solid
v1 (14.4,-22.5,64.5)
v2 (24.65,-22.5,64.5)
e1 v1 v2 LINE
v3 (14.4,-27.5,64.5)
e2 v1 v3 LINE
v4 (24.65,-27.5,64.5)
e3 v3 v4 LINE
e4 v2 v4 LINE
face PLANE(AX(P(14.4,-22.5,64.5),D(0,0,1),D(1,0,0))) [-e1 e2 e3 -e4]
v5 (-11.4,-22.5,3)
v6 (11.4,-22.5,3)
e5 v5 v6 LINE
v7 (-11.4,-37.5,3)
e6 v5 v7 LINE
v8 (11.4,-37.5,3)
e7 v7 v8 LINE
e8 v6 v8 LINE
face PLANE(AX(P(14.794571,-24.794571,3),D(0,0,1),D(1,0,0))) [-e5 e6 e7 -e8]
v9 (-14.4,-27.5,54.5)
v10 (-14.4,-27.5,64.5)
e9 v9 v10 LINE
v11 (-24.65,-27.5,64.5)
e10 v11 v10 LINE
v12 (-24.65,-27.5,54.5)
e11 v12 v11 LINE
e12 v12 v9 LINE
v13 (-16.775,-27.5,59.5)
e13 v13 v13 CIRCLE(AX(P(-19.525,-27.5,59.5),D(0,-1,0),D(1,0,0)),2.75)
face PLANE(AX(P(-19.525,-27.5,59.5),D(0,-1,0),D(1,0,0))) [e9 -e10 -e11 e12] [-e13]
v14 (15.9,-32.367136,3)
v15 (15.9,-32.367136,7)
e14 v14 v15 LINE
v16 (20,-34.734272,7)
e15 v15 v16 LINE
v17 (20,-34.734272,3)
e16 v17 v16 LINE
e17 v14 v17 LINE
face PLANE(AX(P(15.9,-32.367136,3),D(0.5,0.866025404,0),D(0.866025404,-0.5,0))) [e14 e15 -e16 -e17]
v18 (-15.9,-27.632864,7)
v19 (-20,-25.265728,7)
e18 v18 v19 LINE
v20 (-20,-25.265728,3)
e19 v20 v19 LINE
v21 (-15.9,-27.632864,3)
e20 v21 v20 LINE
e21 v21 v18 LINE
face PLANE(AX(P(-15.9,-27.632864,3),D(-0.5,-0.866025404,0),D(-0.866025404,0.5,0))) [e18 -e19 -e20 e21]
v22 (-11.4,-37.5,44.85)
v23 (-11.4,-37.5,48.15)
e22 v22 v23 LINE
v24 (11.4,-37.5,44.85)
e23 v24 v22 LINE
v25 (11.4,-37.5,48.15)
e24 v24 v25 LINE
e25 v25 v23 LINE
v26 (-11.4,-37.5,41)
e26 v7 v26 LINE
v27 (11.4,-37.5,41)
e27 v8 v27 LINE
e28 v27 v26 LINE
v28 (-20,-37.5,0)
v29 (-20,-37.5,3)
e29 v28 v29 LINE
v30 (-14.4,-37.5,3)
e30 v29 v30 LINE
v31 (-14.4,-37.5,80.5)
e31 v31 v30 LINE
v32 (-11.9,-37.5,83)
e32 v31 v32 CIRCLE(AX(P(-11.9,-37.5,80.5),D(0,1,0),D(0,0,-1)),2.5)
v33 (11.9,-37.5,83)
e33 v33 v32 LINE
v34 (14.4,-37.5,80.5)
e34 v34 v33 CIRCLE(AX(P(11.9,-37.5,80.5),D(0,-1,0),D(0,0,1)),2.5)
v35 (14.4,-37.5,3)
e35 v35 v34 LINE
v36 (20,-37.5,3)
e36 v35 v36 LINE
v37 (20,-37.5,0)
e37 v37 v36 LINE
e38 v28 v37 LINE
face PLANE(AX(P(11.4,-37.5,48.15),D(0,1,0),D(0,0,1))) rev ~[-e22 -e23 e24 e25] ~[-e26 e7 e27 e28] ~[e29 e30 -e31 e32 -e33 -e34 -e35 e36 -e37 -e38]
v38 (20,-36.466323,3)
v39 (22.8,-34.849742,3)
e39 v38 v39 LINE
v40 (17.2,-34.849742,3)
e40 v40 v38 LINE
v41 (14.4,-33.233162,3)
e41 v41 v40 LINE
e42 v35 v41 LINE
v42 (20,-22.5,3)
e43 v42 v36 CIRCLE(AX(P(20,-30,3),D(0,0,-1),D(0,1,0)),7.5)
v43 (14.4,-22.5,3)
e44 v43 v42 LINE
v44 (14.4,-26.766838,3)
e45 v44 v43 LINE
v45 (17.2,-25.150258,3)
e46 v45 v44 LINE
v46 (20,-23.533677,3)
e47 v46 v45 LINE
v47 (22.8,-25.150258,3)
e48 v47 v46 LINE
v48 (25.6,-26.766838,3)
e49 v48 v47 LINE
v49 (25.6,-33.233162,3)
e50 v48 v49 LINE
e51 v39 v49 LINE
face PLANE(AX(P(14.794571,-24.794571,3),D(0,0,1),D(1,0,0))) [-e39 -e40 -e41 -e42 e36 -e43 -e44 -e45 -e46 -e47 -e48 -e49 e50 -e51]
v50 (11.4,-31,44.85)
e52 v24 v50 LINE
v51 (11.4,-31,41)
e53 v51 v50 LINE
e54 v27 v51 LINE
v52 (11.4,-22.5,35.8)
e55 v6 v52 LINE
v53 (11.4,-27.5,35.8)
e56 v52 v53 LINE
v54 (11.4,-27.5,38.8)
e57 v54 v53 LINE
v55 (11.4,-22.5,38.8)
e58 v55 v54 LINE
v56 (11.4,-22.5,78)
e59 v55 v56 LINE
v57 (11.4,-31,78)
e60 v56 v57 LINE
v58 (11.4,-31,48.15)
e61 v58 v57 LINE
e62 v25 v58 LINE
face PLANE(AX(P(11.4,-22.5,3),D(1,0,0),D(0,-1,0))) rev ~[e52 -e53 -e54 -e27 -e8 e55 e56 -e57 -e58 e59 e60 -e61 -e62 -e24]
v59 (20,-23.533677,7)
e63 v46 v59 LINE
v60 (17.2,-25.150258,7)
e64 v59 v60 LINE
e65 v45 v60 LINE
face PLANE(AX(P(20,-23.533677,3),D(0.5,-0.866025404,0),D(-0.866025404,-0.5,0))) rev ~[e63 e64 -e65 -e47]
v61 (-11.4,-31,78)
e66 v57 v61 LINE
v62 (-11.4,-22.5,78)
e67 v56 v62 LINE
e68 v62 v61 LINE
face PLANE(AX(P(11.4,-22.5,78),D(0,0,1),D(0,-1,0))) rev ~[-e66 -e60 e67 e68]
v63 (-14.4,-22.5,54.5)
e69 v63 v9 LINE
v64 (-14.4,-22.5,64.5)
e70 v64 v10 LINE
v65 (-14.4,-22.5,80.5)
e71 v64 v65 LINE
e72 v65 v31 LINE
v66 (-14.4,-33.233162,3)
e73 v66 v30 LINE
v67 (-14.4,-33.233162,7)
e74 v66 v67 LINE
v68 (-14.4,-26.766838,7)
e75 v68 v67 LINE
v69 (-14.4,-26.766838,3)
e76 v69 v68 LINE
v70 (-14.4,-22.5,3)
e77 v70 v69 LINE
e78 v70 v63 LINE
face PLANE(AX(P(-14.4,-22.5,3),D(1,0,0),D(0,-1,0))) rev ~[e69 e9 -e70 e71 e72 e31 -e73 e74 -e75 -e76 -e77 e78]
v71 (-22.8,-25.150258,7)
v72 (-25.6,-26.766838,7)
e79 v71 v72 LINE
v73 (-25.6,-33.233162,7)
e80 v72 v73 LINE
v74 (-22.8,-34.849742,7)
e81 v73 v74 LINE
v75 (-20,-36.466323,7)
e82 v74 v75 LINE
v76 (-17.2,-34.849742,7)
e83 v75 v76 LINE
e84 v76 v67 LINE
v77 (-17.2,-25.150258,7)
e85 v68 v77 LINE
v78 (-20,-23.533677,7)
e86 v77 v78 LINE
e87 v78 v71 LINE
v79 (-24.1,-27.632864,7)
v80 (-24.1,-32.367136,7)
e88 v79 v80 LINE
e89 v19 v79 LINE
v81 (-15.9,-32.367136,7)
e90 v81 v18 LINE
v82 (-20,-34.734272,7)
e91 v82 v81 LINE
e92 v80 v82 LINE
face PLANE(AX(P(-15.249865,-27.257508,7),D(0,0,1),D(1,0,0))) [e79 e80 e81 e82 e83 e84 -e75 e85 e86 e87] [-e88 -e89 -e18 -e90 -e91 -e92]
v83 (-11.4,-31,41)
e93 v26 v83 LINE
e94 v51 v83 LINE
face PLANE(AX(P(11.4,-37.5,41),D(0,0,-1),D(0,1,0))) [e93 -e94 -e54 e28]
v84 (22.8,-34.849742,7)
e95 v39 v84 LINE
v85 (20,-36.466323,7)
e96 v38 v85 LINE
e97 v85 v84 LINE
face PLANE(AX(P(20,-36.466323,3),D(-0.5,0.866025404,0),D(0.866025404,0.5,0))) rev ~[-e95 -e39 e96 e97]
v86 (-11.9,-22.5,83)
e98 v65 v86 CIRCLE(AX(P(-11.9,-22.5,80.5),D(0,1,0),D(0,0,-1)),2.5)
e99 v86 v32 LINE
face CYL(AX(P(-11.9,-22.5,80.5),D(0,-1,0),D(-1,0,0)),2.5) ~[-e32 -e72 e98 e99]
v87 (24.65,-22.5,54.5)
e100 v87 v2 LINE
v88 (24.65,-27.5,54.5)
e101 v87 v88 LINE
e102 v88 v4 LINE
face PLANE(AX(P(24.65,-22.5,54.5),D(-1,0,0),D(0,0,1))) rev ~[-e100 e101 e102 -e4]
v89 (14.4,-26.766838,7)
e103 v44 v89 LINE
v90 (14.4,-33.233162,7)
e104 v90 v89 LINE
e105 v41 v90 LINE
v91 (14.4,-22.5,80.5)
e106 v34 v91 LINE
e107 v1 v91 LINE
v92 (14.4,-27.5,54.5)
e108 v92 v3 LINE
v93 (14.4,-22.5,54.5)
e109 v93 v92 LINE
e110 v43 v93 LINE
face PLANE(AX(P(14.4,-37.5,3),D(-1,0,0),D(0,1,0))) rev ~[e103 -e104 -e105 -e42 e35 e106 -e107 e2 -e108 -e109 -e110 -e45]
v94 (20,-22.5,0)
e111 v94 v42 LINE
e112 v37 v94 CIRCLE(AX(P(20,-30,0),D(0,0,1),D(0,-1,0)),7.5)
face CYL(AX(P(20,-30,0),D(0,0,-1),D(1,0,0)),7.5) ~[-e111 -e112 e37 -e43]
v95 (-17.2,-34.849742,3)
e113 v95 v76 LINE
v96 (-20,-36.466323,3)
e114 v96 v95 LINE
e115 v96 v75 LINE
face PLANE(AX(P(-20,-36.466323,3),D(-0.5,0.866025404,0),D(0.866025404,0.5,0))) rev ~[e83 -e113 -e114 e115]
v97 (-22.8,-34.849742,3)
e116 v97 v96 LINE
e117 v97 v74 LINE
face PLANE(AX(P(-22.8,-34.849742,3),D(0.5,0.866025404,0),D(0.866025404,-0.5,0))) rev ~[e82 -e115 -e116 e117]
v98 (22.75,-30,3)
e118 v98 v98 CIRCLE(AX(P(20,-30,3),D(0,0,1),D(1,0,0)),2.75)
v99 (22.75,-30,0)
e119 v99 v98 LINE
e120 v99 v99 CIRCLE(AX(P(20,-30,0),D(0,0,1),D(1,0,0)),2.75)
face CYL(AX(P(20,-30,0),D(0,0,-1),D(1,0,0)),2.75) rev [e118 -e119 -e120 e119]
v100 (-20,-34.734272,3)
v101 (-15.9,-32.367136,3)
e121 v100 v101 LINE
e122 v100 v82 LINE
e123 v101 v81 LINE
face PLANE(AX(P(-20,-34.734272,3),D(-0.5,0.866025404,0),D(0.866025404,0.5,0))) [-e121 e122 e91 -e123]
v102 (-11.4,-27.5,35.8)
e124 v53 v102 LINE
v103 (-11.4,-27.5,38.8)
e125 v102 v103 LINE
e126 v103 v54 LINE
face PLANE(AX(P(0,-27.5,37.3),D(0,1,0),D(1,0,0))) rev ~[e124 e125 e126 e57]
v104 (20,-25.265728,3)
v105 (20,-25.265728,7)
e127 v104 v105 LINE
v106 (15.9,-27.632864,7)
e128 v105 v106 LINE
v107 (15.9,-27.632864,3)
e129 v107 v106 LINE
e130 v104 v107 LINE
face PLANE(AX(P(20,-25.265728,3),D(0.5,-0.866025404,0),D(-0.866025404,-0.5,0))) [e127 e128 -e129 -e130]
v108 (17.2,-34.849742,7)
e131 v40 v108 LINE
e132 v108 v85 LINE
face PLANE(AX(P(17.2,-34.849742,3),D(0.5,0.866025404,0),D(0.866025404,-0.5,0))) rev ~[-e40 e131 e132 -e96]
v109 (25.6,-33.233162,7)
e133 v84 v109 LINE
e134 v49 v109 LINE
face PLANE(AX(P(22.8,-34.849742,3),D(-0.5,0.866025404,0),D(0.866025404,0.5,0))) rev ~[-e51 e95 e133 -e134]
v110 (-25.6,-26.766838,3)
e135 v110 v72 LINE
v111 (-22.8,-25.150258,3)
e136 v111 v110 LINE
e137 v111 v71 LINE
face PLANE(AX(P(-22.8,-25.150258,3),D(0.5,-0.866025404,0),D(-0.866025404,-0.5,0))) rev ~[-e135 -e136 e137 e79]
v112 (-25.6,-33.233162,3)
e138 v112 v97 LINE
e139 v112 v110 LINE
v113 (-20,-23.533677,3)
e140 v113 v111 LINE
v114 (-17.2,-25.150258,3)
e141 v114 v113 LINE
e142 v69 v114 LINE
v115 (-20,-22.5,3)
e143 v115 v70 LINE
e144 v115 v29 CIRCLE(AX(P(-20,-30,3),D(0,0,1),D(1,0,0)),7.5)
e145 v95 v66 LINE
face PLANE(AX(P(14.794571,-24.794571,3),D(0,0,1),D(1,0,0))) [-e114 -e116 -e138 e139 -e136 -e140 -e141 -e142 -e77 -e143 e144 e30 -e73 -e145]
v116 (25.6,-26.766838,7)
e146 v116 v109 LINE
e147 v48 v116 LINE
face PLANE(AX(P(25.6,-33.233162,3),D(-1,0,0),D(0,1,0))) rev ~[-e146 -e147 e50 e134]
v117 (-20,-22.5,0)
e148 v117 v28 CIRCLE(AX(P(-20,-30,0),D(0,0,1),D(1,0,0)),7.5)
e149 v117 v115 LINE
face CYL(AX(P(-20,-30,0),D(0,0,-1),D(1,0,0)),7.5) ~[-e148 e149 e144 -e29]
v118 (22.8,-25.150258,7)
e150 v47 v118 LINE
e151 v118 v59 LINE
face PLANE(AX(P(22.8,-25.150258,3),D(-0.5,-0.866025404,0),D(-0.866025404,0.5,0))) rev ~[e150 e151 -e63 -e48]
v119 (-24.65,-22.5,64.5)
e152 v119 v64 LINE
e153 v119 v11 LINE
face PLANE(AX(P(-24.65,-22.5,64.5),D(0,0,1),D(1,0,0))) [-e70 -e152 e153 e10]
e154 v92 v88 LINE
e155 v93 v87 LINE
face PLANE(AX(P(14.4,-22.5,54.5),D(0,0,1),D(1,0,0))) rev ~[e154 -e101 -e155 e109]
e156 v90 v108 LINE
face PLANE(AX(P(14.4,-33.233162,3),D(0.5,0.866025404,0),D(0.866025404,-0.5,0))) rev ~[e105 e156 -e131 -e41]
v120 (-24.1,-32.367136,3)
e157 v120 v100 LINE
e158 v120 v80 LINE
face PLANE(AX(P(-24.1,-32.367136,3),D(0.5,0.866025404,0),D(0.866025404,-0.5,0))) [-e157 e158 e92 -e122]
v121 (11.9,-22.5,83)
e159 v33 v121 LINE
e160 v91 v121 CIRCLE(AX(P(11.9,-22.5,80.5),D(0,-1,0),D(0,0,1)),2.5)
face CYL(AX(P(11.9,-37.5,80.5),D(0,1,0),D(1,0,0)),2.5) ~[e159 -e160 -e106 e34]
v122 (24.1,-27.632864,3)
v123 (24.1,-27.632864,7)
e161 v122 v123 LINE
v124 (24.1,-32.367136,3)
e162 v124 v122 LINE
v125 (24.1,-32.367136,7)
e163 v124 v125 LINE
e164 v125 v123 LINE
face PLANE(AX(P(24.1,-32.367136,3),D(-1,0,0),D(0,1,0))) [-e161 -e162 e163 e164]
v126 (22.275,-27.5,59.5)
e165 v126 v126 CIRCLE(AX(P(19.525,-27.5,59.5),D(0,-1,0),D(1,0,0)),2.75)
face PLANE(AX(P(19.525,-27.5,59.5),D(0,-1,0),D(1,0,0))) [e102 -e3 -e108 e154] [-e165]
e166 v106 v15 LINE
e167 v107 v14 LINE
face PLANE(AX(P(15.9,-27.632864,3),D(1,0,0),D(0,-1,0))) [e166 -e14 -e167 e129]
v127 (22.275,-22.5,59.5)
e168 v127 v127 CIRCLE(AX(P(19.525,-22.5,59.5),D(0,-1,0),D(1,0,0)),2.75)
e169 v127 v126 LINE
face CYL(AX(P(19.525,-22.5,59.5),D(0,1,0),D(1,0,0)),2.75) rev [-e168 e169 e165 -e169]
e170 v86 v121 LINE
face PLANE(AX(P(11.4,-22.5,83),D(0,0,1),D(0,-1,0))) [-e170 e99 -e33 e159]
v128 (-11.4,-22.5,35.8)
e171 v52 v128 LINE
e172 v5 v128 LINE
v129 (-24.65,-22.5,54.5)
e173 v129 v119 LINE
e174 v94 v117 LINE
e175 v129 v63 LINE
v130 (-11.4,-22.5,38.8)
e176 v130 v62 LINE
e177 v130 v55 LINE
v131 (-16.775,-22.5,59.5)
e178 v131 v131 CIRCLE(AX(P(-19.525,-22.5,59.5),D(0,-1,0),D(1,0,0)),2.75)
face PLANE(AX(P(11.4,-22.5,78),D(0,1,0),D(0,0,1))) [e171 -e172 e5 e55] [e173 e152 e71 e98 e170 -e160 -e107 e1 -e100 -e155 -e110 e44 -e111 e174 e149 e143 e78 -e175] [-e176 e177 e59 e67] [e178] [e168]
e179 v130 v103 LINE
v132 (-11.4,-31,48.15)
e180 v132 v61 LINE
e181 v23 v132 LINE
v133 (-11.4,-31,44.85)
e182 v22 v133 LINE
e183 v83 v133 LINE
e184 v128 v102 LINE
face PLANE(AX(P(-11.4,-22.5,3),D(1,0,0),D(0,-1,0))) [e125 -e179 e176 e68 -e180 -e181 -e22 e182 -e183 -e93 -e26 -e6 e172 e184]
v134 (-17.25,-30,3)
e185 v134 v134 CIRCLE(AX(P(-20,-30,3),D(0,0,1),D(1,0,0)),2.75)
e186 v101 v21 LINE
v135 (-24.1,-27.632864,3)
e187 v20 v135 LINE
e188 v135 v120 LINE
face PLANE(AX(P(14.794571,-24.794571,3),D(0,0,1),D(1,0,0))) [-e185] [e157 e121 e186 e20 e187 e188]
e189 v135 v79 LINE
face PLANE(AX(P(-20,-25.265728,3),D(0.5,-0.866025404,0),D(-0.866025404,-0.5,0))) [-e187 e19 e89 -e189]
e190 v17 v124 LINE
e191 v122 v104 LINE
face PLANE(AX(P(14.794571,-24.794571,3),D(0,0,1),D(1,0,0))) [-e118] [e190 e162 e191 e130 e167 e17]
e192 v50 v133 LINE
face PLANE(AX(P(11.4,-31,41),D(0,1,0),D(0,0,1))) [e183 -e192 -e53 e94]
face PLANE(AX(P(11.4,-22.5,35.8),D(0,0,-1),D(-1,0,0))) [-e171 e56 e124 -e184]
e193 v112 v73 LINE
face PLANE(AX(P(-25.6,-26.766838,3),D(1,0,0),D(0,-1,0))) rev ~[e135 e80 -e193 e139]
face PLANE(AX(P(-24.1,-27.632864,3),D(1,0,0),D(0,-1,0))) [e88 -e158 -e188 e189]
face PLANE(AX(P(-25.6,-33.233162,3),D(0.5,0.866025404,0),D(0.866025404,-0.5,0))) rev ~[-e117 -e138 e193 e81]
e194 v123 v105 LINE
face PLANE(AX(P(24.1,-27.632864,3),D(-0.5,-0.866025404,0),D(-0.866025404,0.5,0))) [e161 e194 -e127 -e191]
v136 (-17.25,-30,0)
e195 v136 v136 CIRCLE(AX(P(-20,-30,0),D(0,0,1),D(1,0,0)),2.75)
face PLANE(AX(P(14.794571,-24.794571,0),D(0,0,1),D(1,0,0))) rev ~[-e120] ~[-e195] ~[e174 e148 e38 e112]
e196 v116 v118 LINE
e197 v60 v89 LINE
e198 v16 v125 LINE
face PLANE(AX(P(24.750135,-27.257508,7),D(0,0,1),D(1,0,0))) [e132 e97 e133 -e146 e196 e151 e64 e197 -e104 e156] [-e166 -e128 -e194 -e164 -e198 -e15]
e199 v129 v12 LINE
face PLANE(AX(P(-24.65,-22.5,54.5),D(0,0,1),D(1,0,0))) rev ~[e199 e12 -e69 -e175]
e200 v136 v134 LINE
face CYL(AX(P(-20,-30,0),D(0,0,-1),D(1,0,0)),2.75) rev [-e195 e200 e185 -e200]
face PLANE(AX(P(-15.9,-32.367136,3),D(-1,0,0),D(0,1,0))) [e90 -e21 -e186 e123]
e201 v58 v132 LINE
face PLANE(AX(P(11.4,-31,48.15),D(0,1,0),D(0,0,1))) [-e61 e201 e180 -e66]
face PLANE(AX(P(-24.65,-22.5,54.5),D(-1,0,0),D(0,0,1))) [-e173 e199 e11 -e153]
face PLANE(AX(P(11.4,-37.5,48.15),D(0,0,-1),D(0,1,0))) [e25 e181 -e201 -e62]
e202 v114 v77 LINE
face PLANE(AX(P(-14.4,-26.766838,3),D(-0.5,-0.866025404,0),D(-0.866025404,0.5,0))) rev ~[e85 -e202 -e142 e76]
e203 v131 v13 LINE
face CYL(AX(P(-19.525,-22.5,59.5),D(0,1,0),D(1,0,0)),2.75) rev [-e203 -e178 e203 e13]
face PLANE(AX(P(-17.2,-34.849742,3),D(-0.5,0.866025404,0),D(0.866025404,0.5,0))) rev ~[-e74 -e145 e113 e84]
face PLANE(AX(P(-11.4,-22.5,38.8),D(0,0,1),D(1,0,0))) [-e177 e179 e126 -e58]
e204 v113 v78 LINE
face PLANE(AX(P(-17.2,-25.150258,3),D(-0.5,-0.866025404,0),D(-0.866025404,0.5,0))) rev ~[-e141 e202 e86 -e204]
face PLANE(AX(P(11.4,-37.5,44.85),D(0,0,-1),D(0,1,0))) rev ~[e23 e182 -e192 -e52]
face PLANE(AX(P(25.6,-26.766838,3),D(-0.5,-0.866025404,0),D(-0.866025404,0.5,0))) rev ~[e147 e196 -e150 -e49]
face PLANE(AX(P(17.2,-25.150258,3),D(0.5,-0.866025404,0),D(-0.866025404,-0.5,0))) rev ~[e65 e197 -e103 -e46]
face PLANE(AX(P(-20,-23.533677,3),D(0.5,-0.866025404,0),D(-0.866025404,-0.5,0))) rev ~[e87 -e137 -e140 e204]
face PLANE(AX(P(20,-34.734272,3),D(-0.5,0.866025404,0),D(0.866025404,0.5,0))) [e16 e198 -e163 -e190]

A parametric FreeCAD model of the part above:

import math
import FreeCAD as App
import Part
import Sketcher
Q = App.Units.Quantity


def edges_at(feature, points):
    """Names of the edges that pass closest to the given points."""
    edges = feature.Shape.Edges
    near = lambda p: min(range(len(edges)), key=lambda i: edges[i].distToShape(Part.Vertex(*p))[0])
    return sorted({f"Edge{near(p) + 1}" for p in points})

doc = App.newDocument("Part")
body = doc.addObject("PartDesign::Body", "Body")

# Sketch on XY plane
sketch1 = doc.addObject("Sketcher::SketchObject", "Sketch")
body.addObject(sketch1)
sketch1.AttachmentSupport = (doc.XY_Plane, [""])
sketch1.MapMode = "FlatFace"
sketch1.addGeometry(Part.ArcOfCircle(Part.Circle(App.Vector(-20, -30, 0), App.Vector(0, 0, 1), 7.5), math.radians(90), math.radians(270)), False)
sketch1.addGeometry(Part.LineSegment(App.Vector(-20, -37.5, 0), App.Vector(20, -37.5, 0)), False)
sketch1.addGeometry(Part.ArcOfCircle(Part.Circle(App.Vector(20, -30, 0), App.Vector(0, 0, 1), 7.5), math.radians(-90), math.radians(90)), False)
sketch1.addGeometry(Part.LineSegment(App.Vector(20, -22.5, 0), App.Vector(-20, -22.5, 0)), False)
sketch1.addGeometry(Part.Circle(App.Vector(-20, -30, 0), App.Vector(0, 0, 1), 2.75), False)
sketch1.addGeometry(Part.Circle(App.Vector(20, -30, 0), App.Vector(0, 0, 1), 2.75), False)
sketch1.addConstraint(Sketcher.Constraint("Tangent", 0, 2, 1, 1))
sketch1.addConstraint(Sketcher.Constraint("Tangent", 1, 2, 2, 1))
sketch1.addConstraint(Sketcher.Constraint("Tangent", 2, 2, 3, 1))
sketch1.addConstraint(Sketcher.Constraint("Tangent", 3, 2, 0, 1))
sketch1.addConstraint(Sketcher.Constraint("Horizontal", 1))
sketch1.addConstraint(Sketcher.Constraint("Horizontal", 3))
sketch1.addConstraint(Sketcher.Constraint("Coincident", 4, 3, 0, 3))
sketch1.addConstraint(Sketcher.Constraint("Coincident", 5, 3, 2, 3))
sketch1.addConstraint(Sketcher.Constraint("Equal", 4, 5))
sketch1.addConstraint(Sketcher.Constraint("Diameter", 4, Q("5.5 mm")))
sketch1.addConstraint(Sketcher.Constraint("Radius", 0, Q("7.5 mm")))
sketch1.addConstraint(Sketcher.Constraint("DistanceX", 1, 1, 1, 2, Q("40 mm")))
sketch1.addConstraint(Sketcher.Constraint("DistanceX", 0, 3, -1, 1, Q("20 mm")))
sketch1.addConstraint(Sketcher.Constraint("DistanceY", 0, 3, -1, 1, Q("30 mm")))
pad1 = doc.addObject("PartDesign::Pad", "Pad")
body.addObject(pad1)
pad1.Profile = sketch1
pad1.Length = 3

# Sketch on XY plane
sketch2 = doc.addObject("Sketcher::SketchObject", "Sketch001")
body.addObject(sketch2)
sketch2.AttachmentSupport = (doc.XY_Plane, [""])
sketch2.MapMode = "FlatFace"
sketch2.AttachmentOffset = App.Placement(App.Vector(0, 0, 3), App.Rotation())
sketch2.addGeometry(Part.LineSegment(App.Vector(-14.4, -26.766838, 0), App.Vector(-17.2, -25.150258, 0)), False)
sketch2.addGeometry(Part.LineSegment(App.Vector(-17.2, -25.150258, 0), App.Vector(-20, -23.533677, 0)), False)
sketch2.addGeometry(Part.LineSegment(App.Vector(-20, -23.533677, 0), App.Vector(-22.8, -25.150258, 0)), False)
sketch2.addGeometry(Part.LineSegment(App.Vector(-22.8, -25.150258, 0), App.Vector(-25.6, -26.766838, 0)), False)
sketch2.addGeometry(Part.LineSegment(App.Vector(-25.6, -26.766838, 0), App.Vector(-25.6, -33.233162, 0)), False)
sketch2.addGeometry(Part.LineSegment(App.Vector(-25.6, -33.233162, 0), App.Vector(-22.8, -34.849742, 0)), False)
sketch2.addGeometry(Part.LineSegment(App.Vector(-22.8, -34.849742, 0), App.Vector(-20, -36.466323, 0)), False)
sketch2.addGeometry(Part.LineSegment(App.Vector(-20, -36.466323, 0), App.Vector(-17.2, -34.849742, 0)), False)
sketch2.addGeometry(Part.LineSegment(App.Vector(-17.2, -34.849742, 0), App.Vector(-14.4, -33.233162, 0)), False)
sketch2.addGeometry(Part.LineSegment(App.Vector(-14.4, -33.233162, 0), App.Vector(-14.4, -26.766838, 0)), False)
sketch2.addGeometry(Part.LineSegment(App.Vector(-15.9, -27.632864, 0), App.Vector(-15.9, -32.367136, 0)), False)
sketch2.addGeometry(Part.LineSegment(App.Vector(-15.9, -32.367136, 0), App.Vector(-20, -34.734272, 0)), False)
sketch2.addGeometry(Part.LineSegment(App.Vector(-20, -34.734272, 0), App.Vector(-24.1, -32.367136, 0)), False)
sketch2.addGeometry(Part.LineSegment(App.Vector(-24.1, -32.367136, 0), App.Vector(-24.1, -27.632864, 0)), False)
sketch2.addGeometry(Part.LineSegment(App.Vector(-24.1, -27.632864, 0), App.Vector(-20, -25.265728, 0)), False)
sketch2.addGeometry(Part.LineSegment(App.Vector(-20, -25.265728, 0), App.Vector(-15.9, -27.632864, 0)), False)
sketch2.addGeometry(Part.LineSegment(App.Vector(25.6, -26.766838, 0), App.Vector(22.8, -25.150258, 0)), False)
sketch2.addGeometry(Part.LineSegment(App.Vector(22.8, -25.150258, 0), App.Vector(20, -23.533677, 0)), False)
sketch2.addGeometry(Part.LineSegment(App.Vector(20, -23.533677, 0), App.Vector(17.2, -25.150258, 0)), False)
sketch2.addGeometry(Part.LineSegment(App.Vector(17.2, -25.150258, 0), App.Vector(14.4, -26.766838, 0)), False)
sketch2.addGeometry(Part.LineSegment(App.Vector(14.4, -26.766838, 0), App.Vector(14.4, -33.233162, 0)), False)
sketch2.addGeometry(Part.LineSegment(App.Vector(14.4, -33.233162, 0), App.Vector(17.2, -34.849742, 0)), False)
sketch2.addGeometry(Part.LineSegment(App.Vector(17.2, -34.849742, 0), App.Vector(20, -36.466323, 0)), False)
sketch2.addGeometry(Part.LineSegment(App.Vector(20, -36.466323, 0), App.Vector(22.8, -34.849742, 0)), False)
sketch2.addGeometry(Part.LineSegment(App.Vector(22.8, -34.849742, 0), App.Vector(25.6, -33.233162, 0)), False)
sketch2.addGeometry(Part.LineSegment(App.Vector(25.6, -33.233162, 0), App.Vector(25.6, -26.766838, 0)), False)
sketch2.addGeometry(Part.LineSegment(App.Vector(24.1, -27.632864, 0), App.Vector(24.1, -32.367136, 0)), False)
sketch2.addGeometry(Part.LineSegment(App.Vector(24.1, -32.367136, 0), App.Vector(20, -34.734272, 0)), False)
sketch2.addGeometry(Part.LineSegment(App.Vector(20, -34.734272, 0), App.Vector(15.9, -32.367136, 0)), False)
sketch2.addGeometry(Part.LineSegment(App.Vector(15.9, -32.367136, 0), App.Vector(15.9, -27.632864, 0)), False)
sketch2.addGeometry(Part.LineSegment(App.Vector(15.9, -27.632864, 0), App.Vector(20, -25.265728, 0)), False)
sketch2.addGeometry(Part.LineSegment(App.Vector(20, -25.265728, 0), App.Vector(24.1, -27.632864, 0)), False)
sketch2.addConstraint(Sketcher.Constraint("Coincident", 0, 2, 1, 1))
sketch2.addConstraint(Sketcher.Constraint("Coincident", 1, 2, 2, 1))
sketch2.addConstraint(Sketcher.Constraint("Coincident", 2, 2, 3, 1))
sketch2.addConstraint(Sketcher.Constraint("Coincident", 3, 2, 4, 1))
sketch2.addConstraint(Sketcher.Constraint("Coincident", 4, 2, 5, 1))
sketch2.addConstraint(Sketcher.Constraint("Coincident", 5, 2, 6, 1))
sketch2.addConstraint(Sketcher.Constraint("Coincident", 6, 2, 7, 1))
sketch2.addConstraint(Sketcher.Constraint("Coincident", 7, 2, 8, 1))
sketch2.addConstraint(Sketcher.Constraint("Coincident", 8, 2, 9, 1))
sketch2.addConstraint(Sketcher.Constraint("Coincident", 9, 2, 0, 1))
sketch2.addConstraint(Sketcher.Constraint("Coincident", 10, 2, 11, 1))
sketch2.addConstraint(Sketcher.Constraint("Coincident", 11, 2, 12, 1))
sketch2.addConstraint(Sketcher.Constraint("Coincident", 12, 2, 13, 1))
sketch2.addConstraint(Sketcher.Constraint("Coincident", 13, 2, 14, 1))
sketch2.addConstraint(Sketcher.Constraint("Coincident", 14, 2, 15, 1))
sketch2.addConstraint(Sketcher.Constraint("Coincident", 15, 2, 10, 1))
sketch2.addConstraint(Sketcher.Constraint("Coincident", 16, 2, 17, 1))
sketch2.addConstraint(Sketcher.Constraint("Coincident", 17, 2, 18, 1))
sketch2.addConstraint(Sketcher.Constraint("Coincident", 18, 2, 19, 1))
sketch2.addConstraint(Sketcher.Constraint("Coincident", 19, 2, 20, 1))
sketch2.addConstraint(Sketcher.Constraint("Coincident", 20, 2, 21, 1))
sketch2.addConstraint(Sketcher.Constraint("Coincident", 21, 2, 22, 1))
sketch2.addConstraint(Sketcher.Constraint("Coincident", 22, 2, 23, 1))
sketch2.addConstraint(Sketcher.Constraint("Coincident", 23, 2, 24, 1))
sketch2.addConstraint(Sketcher.Constraint("Coincident", 24, 2, 25, 1))
sketch2.addConstraint(Sketcher.Constraint("Coincident", 25, 2, 16, 1))
sketch2.addConstraint(Sketcher.Constraint("Coincident", 26, 2, 27, 1))
sketch2.addConstraint(Sketcher.Constraint("Coincident", 27, 2, 28, 1))
sketch2.addConstraint(Sketcher.Constraint("Coincident", 28, 2, 29, 1))
sketch2.addConstraint(Sketcher.Constraint("Coincident", 29, 2, 30, 1))
sketch2.addConstraint(Sketcher.Constraint("Coincident", 30, 2, 31, 1))
sketch2.addConstraint(Sketcher.Constraint("Coincident", 31, 2, 26, 1))
sketch2.addConstraint(Sketcher.Constraint("Vertical", 4))
sketch2.addConstraint(Sketcher.Constraint("Vertical", 9))
sketch2.addConstraint(Sketcher.Constraint("Vertical", 10))
sketch2.addConstraint(Sketcher.Constraint("Vertical", 13))
sketch2.addConstraint(Sketcher.Constraint("Vertical", 20))
sketch2.addConstraint(Sketcher.Constraint("Vertical", 25))
sketch2.addConstraint(Sketcher.Constraint("Vertical", 26))
sketch2.addConstraint(Sketcher.Constraint("Vertical", 29))
sketch2.addConstraint(Sketcher.Constraint("Symmetric", 2, 2, 16, 2, -2))
sketch2.addConstraint(Sketcher.Constraint("Symmetric", 1, 2, 17, 2, -2))
sketch2.addConstraint(Sketcher.Constraint("Symmetric", 0, 2, 18, 2, -2))
sketch2.addConstraint(Sketcher.Constraint("Symmetric", 9, 2, 19, 2, -2))
sketch2.addConstraint(Sketcher.Constraint("Symmetric", 7, 2, 21, 2, -2))
sketch2.addConstraint(Sketcher.Constraint("Symmetric", 6, 2, 22, 2, -2))
sketch2.addConstraint(Sketcher.Constraint("Symmetric", 5, 2, 23, 2, -2))
sketch2.addConstraint(Sketcher.Constraint("Symmetric", 4, 2, 24, 2, -2))
sketch2.addConstraint(Sketcher.Constraint("Symmetric", 12, 2, 26, 2, -2))
sketch2.addConstraint(Sketcher.Constraint("Symmetric", 11, 2, 27, 2, -2))
sketch2.addConstraint(Sketcher.Constraint("Symmetric", 10, 2, 28, 2, -2))
sketch2.addConstraint(Sketcher.Constraint("Symmetric", 14, 2, 30, 2, -2))
sketch2.addConstraint(Sketcher.Constraint("Parallel", 0, 1))
sketch2.addConstraint(Sketcher.Constraint("Parallel", 2, 3))
sketch2.addConstraint(Sketcher.Constraint("Parallel", 1, 5))
sketch2.addConstraint(Sketcher.Constraint("Parallel", 5, 6))
sketch2.addConstraint(Sketcher.Constraint("Parallel", 3, 7))
sketch2.addConstraint(Sketcher.Constraint("Parallel", 7, 8))
sketch2.addConstraint(Sketcher.Constraint("Parallel", 8, 11))
sketch2.addConstraint(Sketcher.Constraint("Parallel", 6, 12))
sketch2.addConstraint(Sketcher.Constraint("Parallel", 11, 14))
sketch2.addConstraint(Sketcher.Constraint("Parallel", 12, 15))
sketch2.addConstraint(Sketcher.Constraint("Parallel", 15, 16))
sketch2.addConstraint(Sketcher.Constraint("Parallel", 16, 17))
sketch2.addConstraint(Sketcher.Constraint("Parallel", 17, 21))
sketch2.addConstraint(Sketcher.Constraint("Parallel", 27, 30))
sketch2.addConstraint(Sketcher.Constraint("Parallel", 28, 31))
sketch2.addConstraint(Sketcher.Constraint("Horizontal", 0, 2, 2, 2))
sketch2.addConstraint(Sketcher.Constraint("Horizontal", 5, 2, 7, 2))
sketch2.addConstraint(Sketcher.Constraint("Horizontal", 4, 2, 8, 2))
sketch2.addConstraint(Sketcher.Constraint("Horizontal", 3, 2, 9, 2))
sketch2.addConstraint(Sketcher.Constraint("Horizontal", 10, 2, 12, 2))
sketch2.addConstraint(Sketcher.Constraint("Horizontal", 13, 2, 15, 2))
sketch2.addConstraint(Sketcher.Constraint("Vertical", 2, 2, 5, 2))
sketch2.addConstraint(Sketcher.Constraint("Vertical", 6, 2, 11, 2))
sketch2.addConstraint(Sketcher.Constraint("Equal", 0, 1))
sketch2.addConstraint(Sketcher.Constraint("Angle", 0, Q("150 deg")))
sketch2.addConstraint(Sketcher.Constraint("DistanceX", 1, 2, -1, 1, Q("20 mm")))
sketch2.addConstraint(Sketcher.Constraint("DistanceX", 0, 2, -1, 1, Q("17.2 mm")))
sketch2.addConstraint(Sketcher.Constraint("DistanceX", 10, 2, -1, 1, Q("15.9 mm")))
sketch2.addConstraint(Sketcher.Constraint("DistanceY", 4, 2, 4, 1, Q("6.466323 mm")))
sketch2.addConstraint(Sketcher.Constraint("DistanceY", 10, 2, 10, 1, Q("4.734272 mm")))
sketch2.addConstraint(Sketcher.Constraint("DistanceY", 3, 2, -1, 1, Q("26.766838 mm")))
sketch2.addConstraint(Sketcher.Constraint("DistanceY", 10, 2, 0, 2, Q("7.216878 mm")))
pad2 = doc.addObject("PartDesign::Pad", "Pad001")
body.addObject(pad2)
pad2.Profile = sketch2
pad2.Length = 4

# Sketch on XY plane
sketch3 = doc.addObject("Sketcher::SketchObject", "Sketch002")
body.addObject(sketch3)
sketch3.AttachmentSupport = (doc.XY_Plane, [""])
sketch3.MapMode = "FlatFace"
sketch3.AttachmentOffset = App.Placement(App.Vector(0, 0, 3), App.Rotation())
sketch3.addGeometry(Part.LineSegment(App.Vector(-14.4, -22.5, 0), App.Vector(-14.4, -37.5, 0)), False)
sketch3.addGeometry(Part.LineSegment(App.Vector(-14.4, -37.5, 0), App.Vector(-11.4, -37.5, 0)), False)
sketch3.addGeometry(Part.LineSegment(App.Vector(-11.4, -37.5, 0), App.Vector(-11.4, -22.5, 0)), False)
sketch3.addGeometry(Part.LineSegment(App.Vector(-11.4, -22.5, 0), App.Vector(-14.4, -22.5, 0)), False)
sketch3.addGeometry(Part.LineSegment(App.Vector(14.4, -22.5, 0), App.Vector(11.4, -22.5, 0)), False)
sketch3.addGeometry(Part.LineSegment(App.Vector(11.4, -22.5, 0), App.Vector(11.4, -37.5, 0)), False)
sketch3.addGeometry(Part.LineSegment(App.Vector(11.4, -37.5, 0), App.Vector(14.4, -37.5, 0)), False)
sketch3.addGeometry(Part.LineSegment(App.Vector(14.4, -37.5, 0), App.Vector(14.4, -22.5, 0)), False)
sketch3.addConstraint(Sketcher.Constraint("Coincident", 0, 2, 1, 1))
sketch3.addConstraint(Sketcher.Constraint("Coincident", 1, 2, 2, 1))
sketch3.addConstraint(Sketcher.Constraint("Coincident", 2, 2, 3, 1))
sketch3.addConstraint(Sketcher.Constraint("Coincident", 3, 2, 0, 1))
sketch3.addConstraint(Sketcher.Constraint("Coincident", 4, 2, 5, 1))
sketch3.addConstraint(Sketcher.Constraint("Coincident", 5, 2, 6, 1))
sketch3.addConstraint(Sketcher.Constraint("Coincident", 6, 2, 7, 1))
sketch3.addConstraint(Sketcher.Constraint("Coincident", 7, 2, 4, 1))
sketch3.addConstraint(Sketcher.Constraint("Vertical", 0))
sketch3.addConstraint(Sketcher.Constraint("Horizontal", 1))
sketch3.addConstraint(Sketcher.Constraint("Vertical", 2))
sketch3.addConstraint(Sketcher.Constraint("Horizontal", 3))
sketch3.addConstraint(Sketcher.Constraint("Horizontal", 4))
sketch3.addConstraint(Sketcher.Constraint("Vertical", 5))
sketch3.addConstraint(Sketcher.Constraint("Horizontal", 6))
sketch3.addConstraint(Sketcher.Constraint("Vertical", 7))
sketch3.addConstraint(Sketcher.Constraint("Symmetric", 2, 2, 4, 2, -2))
sketch3.addConstraint(Sketcher.Constraint("Symmetric", 0, 2, 6, 2, -2))
sketch3.addConstraint(Sketcher.Constraint("DistanceX", 1, 1, 1, 2, Q("3 mm")))
sketch3.addConstraint(Sketcher.Constraint("DistanceY", 0, 2, 0, 1, Q("15 mm")))
sketch3.addConstraint(Sketcher.Constraint("DistanceX", 0, 2, -1, 1, Q("14.4 mm")))
sketch3.addConstraint(Sketcher.Constraint("DistanceY", 0, 2, -1, 1, Q("37.5 mm")))
pad3 = doc.addObject("PartDesign::Pad", "Pad002")
body.addObject(pad3)
pad3.Profile = sketch3
pad3.Length = 80

# Sketch on YZ plane
sketch4 = doc.addObject("Sketcher::SketchObject", "Sketch003")
body.addObject(sketch4)
sketch4.AttachmentSupport = (doc.YZ_Plane, [""])
sketch4.MapMode = "FlatFace"
sketch4.AttachmentOffset = App.Placement(App.Vector(0, 0, 11.4), App.Rotation())
sketch4.addGeometry(Part.LineSegment(App.Vector(-31, 48.15, 0), App.Vector(-37.5, 48.15, 0)), False)
sketch4.addGeometry(Part.LineSegment(App.Vector(-37.5, 48.15, 0), App.Vector(-37.5, 78, 0)), False)
sketch4.addGeometry(Part.LineSegment(App.Vector(-37.5, 78, 0), App.Vector(-31, 78, 0)), False)
sketch4.addGeometry(Part.LineSegment(App.Vector(-31, 78, 0), App.Vector(-31, 48.15, 0)), False)
sketch4.addGeometry(Part.LineSegment(App.Vector(-31, 41, 0), App.Vector(-37.5, 41, 0)), False)
sketch4.addGeometry(Part.LineSegment(App.Vector(-37.5, 41, 0), App.Vector(-37.5, 44.85, 0)), False)
sketch4.addGeometry(Part.LineSegment(App.Vector(-37.5, 44.85, 0), App.Vector(-31, 44.85, 0)), False)
sketch4.addGeometry(Part.LineSegment(App.Vector(-31, 44.85, 0), App.Vector(-31, 41, 0)), False)
sketch4.addConstraint(Sketcher.Constraint("Coincident", 0, 2, 1, 1))
sketch4.addConstraint(Sketcher.Constraint("Coincident", 1, 2, 2, 1))
sketch4.addConstraint(Sketcher.Constraint("Coincident", 2, 2, 3, 1))
sketch4.addConstraint(Sketcher.Constraint("Coincident", 3, 2, 0, 1))
sketch4.addConstraint(Sketcher.Constraint("Coincident", 4, 2, 5, 1))
sketch4.addConstraint(Sketcher.Constraint("Coincident", 5, 2, 6, 1))
sketch4.addConstraint(Sketcher.Constraint("Coincident", 6, 2, 7, 1))
sketch4.addConstraint(Sketcher.Constraint("Coincident", 7, 2, 4, 1))
sketch4.addConstraint(Sketcher.Constraint("Horizontal", 0))
sketch4.addConstraint(Sketcher.Constraint("Vertical", 1))
sketch4.addConstraint(Sketcher.Constraint("Horizontal", 2))
sketch4.addConstraint(Sketcher.Constraint("Vertical", 3))
sketch4.addConstraint(Sketcher.Constraint("Horizontal", 4))
sketch4.addConstraint(Sketcher.Constraint("Vertical", 5))
sketch4.addConstraint(Sketcher.Constraint("Horizontal", 6))
sketch4.addConstraint(Sketcher.Constraint("Vertical", 7))
sketch4.addConstraint(Sketcher.Constraint("Vertical", 1, 2, 4, 2))
sketch4.addConstraint(Sketcher.Constraint("Vertical", 3, 2, 6, 2))
sketch4.addConstraint(Sketcher.Constraint("DistanceX", 0, 2, 0, 1, Q("6.5 mm")))
sketch4.addConstraint(Sketcher.Constraint("DistanceY", -1, 1, 1, 2, Q("78 mm")))
sketch4.addConstraint(Sketcher.Constraint("DistanceX", 2, 2, -1, 1, Q("31 mm")))
sketch4.addConstraint(Sketcher.Constraint("DistanceY", -1, 1, 4, 2, Q("41 mm")))
sketch4.addConstraint(Sketcher.Constraint("DistanceY", 1, 1, 1, 2, Q("29.85 mm")))
sketch4.addConstraint(Sketcher.Constraint("DistanceY", 5, 1, 5, 2, Q("3.85 mm")))
pad4 = doc.addObject("PartDesign::Pad", "Pad003")
body.addObject(pad4)
pad4.Profile = sketch4
pad4.Length = 80
pad4.Reversed = True

# Sketch on YZ plane
sketch5 = doc.addObject("Sketcher::SketchObject", "Sketch004")
body.addObject(sketch5)
sketch5.AttachmentSupport = (doc.YZ_Plane, [""])
sketch5.MapMode = "FlatFace"
sketch5.AttachmentOffset = App.Placement(App.Vector(0, 0, -68.6), App.Rotation())
sketch5.addGeometry(Part.LineSegment(App.Vector(-31, 48.15, 0), App.Vector(-37.5, 48.15, 0)), False)
sketch5.addGeometry(Part.LineSegment(App.Vector(-37.5, 48.15, 0), App.Vector(-37.5, 78, 0)), False)
sketch5.addGeometry(Part.LineSegment(App.Vector(-37.5, 78, 0), App.Vector(-31, 78, 0)), False)
sketch5.addGeometry(Part.LineSegment(App.Vector(-31, 78, 0), App.Vector(-31, 48.15, 0)), False)
sketch5.addGeometry(Part.LineSegment(App.Vector(-31, 41, 0), App.Vector(-37.5, 41, 0)), False)
sketch5.addGeometry(Part.LineSegment(App.Vector(-37.5, 41, 0), App.Vector(-37.5, 44.85, 0)), False)
sketch5.addGeometry(Part.LineSegment(App.Vector(-37.5, 44.85, 0), App.Vector(-31, 44.85, 0)), False)
sketch5.addGeometry(Part.LineSegment(App.Vector(-31, 44.85, 0), App.Vector(-31, 41, 0)), False)
sketch5.addConstraint(Sketcher.Constraint("Coincident", 0, 2, 1, 1))
sketch5.addConstraint(Sketcher.Constraint("Coincident", 1, 2, 2, 1))
sketch5.addConstraint(Sketcher.Constraint("Coincident", 2, 2, 3, 1))
sketch5.addConstraint(Sketcher.Constraint("Coincident", 3, 2, 0, 1))
sketch5.addConstraint(Sketcher.Constraint("Coincident", 4, 2, 5, 1))
sketch5.addConstraint(Sketcher.Constraint("Coincident", 5, 2, 6, 1))
sketch5.addConstraint(Sketcher.Constraint("Coincident", 6, 2, 7, 1))
sketch5.addConstraint(Sketcher.Constraint("Coincident", 7, 2, 4, 1))
sketch5.addConstraint(Sketcher.Constraint("Horizontal", 0))
sketch5.addConstraint(Sketcher.Constraint("Vertical", 1))
sketch5.addConstraint(Sketcher.Constraint("Horizontal", 2))
sketch5.addConstraint(Sketcher.Constraint("Vertical", 3))
sketch5.addConstraint(Sketcher.Constraint("Horizontal", 4))
sketch5.addConstraint(Sketcher.Constraint("Vertical", 5))
sketch5.addConstraint(Sketcher.Constraint("Horizontal", 6))
sketch5.addConstraint(Sketcher.Constraint("Vertical", 7))
sketch5.addConstraint(Sketcher.Constraint("Vertical", 1, 2, 4, 2))
sketch5.addConstraint(Sketcher.Constraint("Vertical", 3, 2, 6, 2))
sketch5.addConstraint(Sketcher.Constraint("DistanceX", 0, 2, 0, 1, Q("6.5 mm")))
sketch5.addConstraint(Sketcher.Constraint("DistanceY", -1, 1, 1, 2, Q("78 mm")))
sketch5.addConstraint(Sketcher.Constraint("DistanceX", 2, 2, -1, 1, Q("31 mm")))
sketch5.addConstraint(Sketcher.Constraint("DistanceY", -1, 1, 4, 2, Q("41 mm")))
sketch5.addConstraint(Sketcher.Constraint("DistanceY", 1, 1, 1, 2, Q("29.85 mm")))
sketch5.addConstraint(Sketcher.Constraint("DistanceY", 5, 1, 5, 2, Q("3.85 mm")))
pocket1 = doc.addObject("PartDesign::Pocket", "Pocket")
body.addObject(pocket1)
pocket1.Profile = sketch5
pocket1.Length = 54.2
pocket1.Reversed = True

# Sketch on YZ plane
sketch6 = doc.addObject("Sketcher::SketchObject", "Sketch005")
body.addObject(sketch6)
sketch6.AttachmentSupport = (doc.YZ_Plane, [""])
sketch6.MapMode = "FlatFace"
sketch6.AttachmentOffset = App.Placement(App.Vector(0, 0, 11.4), App.Rotation())
sketch6.addGeometry(Part.LineSegment(App.Vector(-22.5, 78, 0), App.Vector(-37.5, 78, 0)), False)
sketch6.addGeometry(Part.LineSegment(App.Vector(-37.5, 78, 0), App.Vector(-37.5, 83, 0)), False)
sketch6.addGeometry(Part.LineSegment(App.Vector(-37.5, 83, 0), App.Vector(-22.5, 83, 0)), False)
sketch6.addGeometry(Part.LineSegment(App.Vector(-22.5, 83, 0), App.Vector(-22.5, 78, 0)), False)
sketch6.addConstraint(Sketcher.Constraint("Coincident", 0, 2, 1, 1))
sketch6.addConstraint(Sketcher.Constraint("Coincident", 1, 2, 2, 1))
sketch6.addConstraint(Sketcher.Constraint("Coincident", 2, 2, 3, 1))
sketch6.addConstraint(Sketcher.Constraint("Coincident", 3, 2, 0, 1))
sketch6.addConstraint(Sketcher.Constraint("Horizontal", 0))
sketch6.addConstraint(Sketcher.Constraint("Vertical", 1))
sketch6.addConstraint(Sketcher.Constraint("Horizontal", 2))
sketch6.addConstraint(Sketcher.Constraint("Vertical", 3))
sketch6.addConstraint(Sketcher.Constraint("DistanceX", 0, 2, 0, 1, Q("15 mm")))
sketch6.addConstraint(Sketcher.Constraint("DistanceY", 1, 1, 1, 2, Q("5 mm")))
sketch6.addConstraint(Sketcher.Constraint("DistanceY", -1, 1, 0, 2, Q("78 mm")))
sketch6.addConstraint(Sketcher.Constraint("DistanceX", 0, 2, -1, 1, Q("37.5 mm")))
pad5 = doc.addObject("PartDesign::Pad", "Pad004")
body.addObject(pad5)
pad5.Profile = sketch6
pad5.Length = 22.8
pad5.Reversed = True

# Sketch on XZ plane
sketch7 = doc.addObject("Sketcher::SketchObject", "Sketch006")
body.addObject(sketch7)
sketch7.AttachmentSupport = (doc.XZ_Plane, [""])
sketch7.MapMode = "FlatFace"
sketch7.AttachmentOffset = App.Placement(App.Vector(0, 0, 22.5), App.Rotation())
sketch7.addGeometry(Part.LineSegment(App.Vector(-24.65, 64.5, 0), App.Vector(-24.65, 54.5, 0)), False)
sketch7.addGeometry(Part.LineSegment(App.Vector(-24.65, 54.5, 0), App.Vector(-14.4, 54.5, 0)), False)
sketch7.addGeometry(Part.LineSegment(App.Vector(-14.4, 54.5, 0), App.Vector(-14.4, 64.5, 0)), False)
sketch7.addGeometry(Part.LineSegment(App.Vector(-14.4, 64.5, 0), App.Vector(-24.65, 64.5, 0)), False)
sketch7.addGeometry(Part.Circle(App.Vector(-19.525, 59.5, 0), App.Vector(0, 0, 1), 2.75), False)
sketch7.addGeometry(Part.LineSegment(App.Vector(14.4, 64.5, 0), App.Vector(14.4, 54.5, 0)), False)
sketch7.addGeometry(Part.LineSegment(App.Vector(14.4, 54.5, 0), App.Vector(24.65, 54.5, 0)), False)
sketch7.addGeometry(Part.LineSegment(App.Vector(24.65, 54.5, 0), App.Vector(24.65, 64.5, 0)), False)
sketch7.addGeometry(Part.LineSegment(App.Vector(24.65, 64.5, 0), App.Vector(14.4, 64.5, 0)), False)
sketch7.addGeometry(Part.Circle(App.Vector(19.525, 59.5, 0), App.Vector(0, 0, 1), 2.75), False)
sketch7.addConstraint(Sketcher.Constraint("Coincident", 0, 2, 1, 1))
sketch7.addConstraint(Sketcher.Constraint("Coincident", 1, 2, 2, 1))
sketch7.addConstraint(Sketcher.Constraint("Coincident", 2, 2, 3, 1))
sketch7.addConstraint(Sketcher.Constraint("Coincident", 3, 2, 0, 1))
sketch7.addConstraint(Sketcher.Constraint("Coincident", 5, 2, 6, 1))
sketch7.addConstraint(Sketcher.Constraint("Coincident", 6, 2, 7, 1))
sketch7.addConstraint(Sketcher.Constraint("Coincident", 7, 2, 8, 1))
sketch7.addConstraint(Sketcher.Constraint("Coincident", 8, 2, 5, 1))
sketch7.addConstraint(Sketcher.Constraint("Vertical", 0))
sketch7.addConstraint(Sketcher.Constraint("Horizontal", 1))
sketch7.addConstraint(Sketcher.Constraint("Vertical", 2))
sketch7.addConstraint(Sketcher.Constraint("Horizontal", 3))
sketch7.addConstraint(Sketcher.Constraint("Vertical", 5))
sketch7.addConstraint(Sketcher.Constraint("Horizontal", 6))
sketch7.addConstraint(Sketcher.Constraint("Vertical", 7))
sketch7.addConstraint(Sketcher.Constraint("Horizontal", 8))
sketch7.addConstraint(Sketcher.Constraint("Equal", 4, 9))
sketch7.addConstraint(Sketcher.Constraint("Symmetric", 4, 3, 9, 3, -2))
sketch7.addConstraint(Sketcher.Constraint("Symmetric", 1, 2, 5, 2, -2))
sketch7.addConstraint(Sketcher.Constraint("Symmetric", 3, 2, 7, 2, -2))
sketch7.addConstraint(Sketcher.Constraint("Diameter", 4, Q("5.5 mm")))
sketch7.addConstraint(Sketcher.Constraint("DistanceY", 0, 2, 0, 1, Q("10 mm")))
sketch7.addConstraint(Sketcher.Constraint("DistanceY", 0, 2, 4, 3, Q("5 mm")))
sketch7.addConstraint(Sketcher.Constraint("DistanceX", 1, 1, 1, 2, Q("10.25 mm")))
sketch7.addConstraint(Sketcher.Constraint("DistanceY", -1, 1, 4, 3, Q("59.5 mm")))
sketch7.addConstraint(Sketcher.Constraint("DistanceX", 1, 2, -1, 1, Q("14.4 mm")))
sketch7.addConstraint(Sketcher.Constraint("DistanceX", 4, 3, 9, 3, Q("39.05 mm")))
pad6 = doc.addObject("PartDesign::Pad", "Pad005")
body.addObject(pad6)
pad6.Profile = sketch7
pad6.Length = 5

# Sketch on XZ plane
sketch8 = doc.addObject("Sketcher::SketchObject", "Sketch007")
body.addObject(sketch8)
sketch8.AttachmentSupport = (doc.XZ_Plane, [""])
sketch8.MapMode = "FlatFace"
sketch8.AttachmentOffset = App.Placement(App.Vector(0, 0, 22.5), App.Rotation())
sketch8.addGeometry(Part.LineSegment(App.Vector(11.4, 38.8, 0), App.Vector(11.4, 35.8, 0)), False)
sketch8.addGeometry(Part.LineSegment(App.Vector(11.4, 35.8, 0), App.Vector(-11.4, 35.8, 0)), False)
sketch8.addGeometry(Part.LineSegment(App.Vector(-11.4, 35.8, 0), App.Vector(-11.4, 38.8, 0)), False)
sketch8.addGeometry(Part.LineSegment(App.Vector(-11.4, 38.8, 0), App.Vector(11.4, 38.8, 0)), False)
sketch8.addConstraint(Sketcher.Constraint("Coincident", 0, 2, 1, 1))
sketch8.addConstraint(Sketcher.Constraint("Coincident", 1, 2, 2, 1))
sketch8.addConstraint(Sketcher.Constraint("Coincident", 2, 2, 3, 1))
sketch8.addConstraint(Sketcher.Constraint("Coincident", 3, 2, 0, 1))
sketch8.addConstraint(Sketcher.Constraint("Vertical", 0))
sketch8.addConstraint(Sketcher.Constraint("Horizontal", 1))
sketch8.addConstraint(Sketcher.Constraint("Vertical", 2))
sketch8.addConstraint(Sketcher.Constraint("Horizontal", 3))
sketch8.addConstraint(Sketcher.Constraint("DistanceY", 0, 2, 0, 1, Q("3 mm")))
sketch8.addConstraint(Sketcher.Constraint("DistanceX", 1, 2, 1, 1, Q("22.8 mm")))
sketch8.addConstraint(Sketcher.Constraint("DistanceX", -1, 1, 0, 2, Q("11.4 mm")))
sketch8.addConstraint(Sketcher.Constraint("DistanceY", -1, 1, 0, 2, Q("35.8 mm")))
pad7 = doc.addObject("PartDesign::Pad", "Pad006")
body.addObject(pad7)
pad7.Profile = sketch8
pad7.Length = 5
doc.recompute()

fillet = doc.addObject("PartDesign::Fillet", "Fillet")
body.addObject(fillet)
fillet.Base = (pad7, edges_at(pad7, [(-14.4, -30, 83), (14.4, -30, 83)]))
fillet.Radius = 2.5

doc.recompute()
